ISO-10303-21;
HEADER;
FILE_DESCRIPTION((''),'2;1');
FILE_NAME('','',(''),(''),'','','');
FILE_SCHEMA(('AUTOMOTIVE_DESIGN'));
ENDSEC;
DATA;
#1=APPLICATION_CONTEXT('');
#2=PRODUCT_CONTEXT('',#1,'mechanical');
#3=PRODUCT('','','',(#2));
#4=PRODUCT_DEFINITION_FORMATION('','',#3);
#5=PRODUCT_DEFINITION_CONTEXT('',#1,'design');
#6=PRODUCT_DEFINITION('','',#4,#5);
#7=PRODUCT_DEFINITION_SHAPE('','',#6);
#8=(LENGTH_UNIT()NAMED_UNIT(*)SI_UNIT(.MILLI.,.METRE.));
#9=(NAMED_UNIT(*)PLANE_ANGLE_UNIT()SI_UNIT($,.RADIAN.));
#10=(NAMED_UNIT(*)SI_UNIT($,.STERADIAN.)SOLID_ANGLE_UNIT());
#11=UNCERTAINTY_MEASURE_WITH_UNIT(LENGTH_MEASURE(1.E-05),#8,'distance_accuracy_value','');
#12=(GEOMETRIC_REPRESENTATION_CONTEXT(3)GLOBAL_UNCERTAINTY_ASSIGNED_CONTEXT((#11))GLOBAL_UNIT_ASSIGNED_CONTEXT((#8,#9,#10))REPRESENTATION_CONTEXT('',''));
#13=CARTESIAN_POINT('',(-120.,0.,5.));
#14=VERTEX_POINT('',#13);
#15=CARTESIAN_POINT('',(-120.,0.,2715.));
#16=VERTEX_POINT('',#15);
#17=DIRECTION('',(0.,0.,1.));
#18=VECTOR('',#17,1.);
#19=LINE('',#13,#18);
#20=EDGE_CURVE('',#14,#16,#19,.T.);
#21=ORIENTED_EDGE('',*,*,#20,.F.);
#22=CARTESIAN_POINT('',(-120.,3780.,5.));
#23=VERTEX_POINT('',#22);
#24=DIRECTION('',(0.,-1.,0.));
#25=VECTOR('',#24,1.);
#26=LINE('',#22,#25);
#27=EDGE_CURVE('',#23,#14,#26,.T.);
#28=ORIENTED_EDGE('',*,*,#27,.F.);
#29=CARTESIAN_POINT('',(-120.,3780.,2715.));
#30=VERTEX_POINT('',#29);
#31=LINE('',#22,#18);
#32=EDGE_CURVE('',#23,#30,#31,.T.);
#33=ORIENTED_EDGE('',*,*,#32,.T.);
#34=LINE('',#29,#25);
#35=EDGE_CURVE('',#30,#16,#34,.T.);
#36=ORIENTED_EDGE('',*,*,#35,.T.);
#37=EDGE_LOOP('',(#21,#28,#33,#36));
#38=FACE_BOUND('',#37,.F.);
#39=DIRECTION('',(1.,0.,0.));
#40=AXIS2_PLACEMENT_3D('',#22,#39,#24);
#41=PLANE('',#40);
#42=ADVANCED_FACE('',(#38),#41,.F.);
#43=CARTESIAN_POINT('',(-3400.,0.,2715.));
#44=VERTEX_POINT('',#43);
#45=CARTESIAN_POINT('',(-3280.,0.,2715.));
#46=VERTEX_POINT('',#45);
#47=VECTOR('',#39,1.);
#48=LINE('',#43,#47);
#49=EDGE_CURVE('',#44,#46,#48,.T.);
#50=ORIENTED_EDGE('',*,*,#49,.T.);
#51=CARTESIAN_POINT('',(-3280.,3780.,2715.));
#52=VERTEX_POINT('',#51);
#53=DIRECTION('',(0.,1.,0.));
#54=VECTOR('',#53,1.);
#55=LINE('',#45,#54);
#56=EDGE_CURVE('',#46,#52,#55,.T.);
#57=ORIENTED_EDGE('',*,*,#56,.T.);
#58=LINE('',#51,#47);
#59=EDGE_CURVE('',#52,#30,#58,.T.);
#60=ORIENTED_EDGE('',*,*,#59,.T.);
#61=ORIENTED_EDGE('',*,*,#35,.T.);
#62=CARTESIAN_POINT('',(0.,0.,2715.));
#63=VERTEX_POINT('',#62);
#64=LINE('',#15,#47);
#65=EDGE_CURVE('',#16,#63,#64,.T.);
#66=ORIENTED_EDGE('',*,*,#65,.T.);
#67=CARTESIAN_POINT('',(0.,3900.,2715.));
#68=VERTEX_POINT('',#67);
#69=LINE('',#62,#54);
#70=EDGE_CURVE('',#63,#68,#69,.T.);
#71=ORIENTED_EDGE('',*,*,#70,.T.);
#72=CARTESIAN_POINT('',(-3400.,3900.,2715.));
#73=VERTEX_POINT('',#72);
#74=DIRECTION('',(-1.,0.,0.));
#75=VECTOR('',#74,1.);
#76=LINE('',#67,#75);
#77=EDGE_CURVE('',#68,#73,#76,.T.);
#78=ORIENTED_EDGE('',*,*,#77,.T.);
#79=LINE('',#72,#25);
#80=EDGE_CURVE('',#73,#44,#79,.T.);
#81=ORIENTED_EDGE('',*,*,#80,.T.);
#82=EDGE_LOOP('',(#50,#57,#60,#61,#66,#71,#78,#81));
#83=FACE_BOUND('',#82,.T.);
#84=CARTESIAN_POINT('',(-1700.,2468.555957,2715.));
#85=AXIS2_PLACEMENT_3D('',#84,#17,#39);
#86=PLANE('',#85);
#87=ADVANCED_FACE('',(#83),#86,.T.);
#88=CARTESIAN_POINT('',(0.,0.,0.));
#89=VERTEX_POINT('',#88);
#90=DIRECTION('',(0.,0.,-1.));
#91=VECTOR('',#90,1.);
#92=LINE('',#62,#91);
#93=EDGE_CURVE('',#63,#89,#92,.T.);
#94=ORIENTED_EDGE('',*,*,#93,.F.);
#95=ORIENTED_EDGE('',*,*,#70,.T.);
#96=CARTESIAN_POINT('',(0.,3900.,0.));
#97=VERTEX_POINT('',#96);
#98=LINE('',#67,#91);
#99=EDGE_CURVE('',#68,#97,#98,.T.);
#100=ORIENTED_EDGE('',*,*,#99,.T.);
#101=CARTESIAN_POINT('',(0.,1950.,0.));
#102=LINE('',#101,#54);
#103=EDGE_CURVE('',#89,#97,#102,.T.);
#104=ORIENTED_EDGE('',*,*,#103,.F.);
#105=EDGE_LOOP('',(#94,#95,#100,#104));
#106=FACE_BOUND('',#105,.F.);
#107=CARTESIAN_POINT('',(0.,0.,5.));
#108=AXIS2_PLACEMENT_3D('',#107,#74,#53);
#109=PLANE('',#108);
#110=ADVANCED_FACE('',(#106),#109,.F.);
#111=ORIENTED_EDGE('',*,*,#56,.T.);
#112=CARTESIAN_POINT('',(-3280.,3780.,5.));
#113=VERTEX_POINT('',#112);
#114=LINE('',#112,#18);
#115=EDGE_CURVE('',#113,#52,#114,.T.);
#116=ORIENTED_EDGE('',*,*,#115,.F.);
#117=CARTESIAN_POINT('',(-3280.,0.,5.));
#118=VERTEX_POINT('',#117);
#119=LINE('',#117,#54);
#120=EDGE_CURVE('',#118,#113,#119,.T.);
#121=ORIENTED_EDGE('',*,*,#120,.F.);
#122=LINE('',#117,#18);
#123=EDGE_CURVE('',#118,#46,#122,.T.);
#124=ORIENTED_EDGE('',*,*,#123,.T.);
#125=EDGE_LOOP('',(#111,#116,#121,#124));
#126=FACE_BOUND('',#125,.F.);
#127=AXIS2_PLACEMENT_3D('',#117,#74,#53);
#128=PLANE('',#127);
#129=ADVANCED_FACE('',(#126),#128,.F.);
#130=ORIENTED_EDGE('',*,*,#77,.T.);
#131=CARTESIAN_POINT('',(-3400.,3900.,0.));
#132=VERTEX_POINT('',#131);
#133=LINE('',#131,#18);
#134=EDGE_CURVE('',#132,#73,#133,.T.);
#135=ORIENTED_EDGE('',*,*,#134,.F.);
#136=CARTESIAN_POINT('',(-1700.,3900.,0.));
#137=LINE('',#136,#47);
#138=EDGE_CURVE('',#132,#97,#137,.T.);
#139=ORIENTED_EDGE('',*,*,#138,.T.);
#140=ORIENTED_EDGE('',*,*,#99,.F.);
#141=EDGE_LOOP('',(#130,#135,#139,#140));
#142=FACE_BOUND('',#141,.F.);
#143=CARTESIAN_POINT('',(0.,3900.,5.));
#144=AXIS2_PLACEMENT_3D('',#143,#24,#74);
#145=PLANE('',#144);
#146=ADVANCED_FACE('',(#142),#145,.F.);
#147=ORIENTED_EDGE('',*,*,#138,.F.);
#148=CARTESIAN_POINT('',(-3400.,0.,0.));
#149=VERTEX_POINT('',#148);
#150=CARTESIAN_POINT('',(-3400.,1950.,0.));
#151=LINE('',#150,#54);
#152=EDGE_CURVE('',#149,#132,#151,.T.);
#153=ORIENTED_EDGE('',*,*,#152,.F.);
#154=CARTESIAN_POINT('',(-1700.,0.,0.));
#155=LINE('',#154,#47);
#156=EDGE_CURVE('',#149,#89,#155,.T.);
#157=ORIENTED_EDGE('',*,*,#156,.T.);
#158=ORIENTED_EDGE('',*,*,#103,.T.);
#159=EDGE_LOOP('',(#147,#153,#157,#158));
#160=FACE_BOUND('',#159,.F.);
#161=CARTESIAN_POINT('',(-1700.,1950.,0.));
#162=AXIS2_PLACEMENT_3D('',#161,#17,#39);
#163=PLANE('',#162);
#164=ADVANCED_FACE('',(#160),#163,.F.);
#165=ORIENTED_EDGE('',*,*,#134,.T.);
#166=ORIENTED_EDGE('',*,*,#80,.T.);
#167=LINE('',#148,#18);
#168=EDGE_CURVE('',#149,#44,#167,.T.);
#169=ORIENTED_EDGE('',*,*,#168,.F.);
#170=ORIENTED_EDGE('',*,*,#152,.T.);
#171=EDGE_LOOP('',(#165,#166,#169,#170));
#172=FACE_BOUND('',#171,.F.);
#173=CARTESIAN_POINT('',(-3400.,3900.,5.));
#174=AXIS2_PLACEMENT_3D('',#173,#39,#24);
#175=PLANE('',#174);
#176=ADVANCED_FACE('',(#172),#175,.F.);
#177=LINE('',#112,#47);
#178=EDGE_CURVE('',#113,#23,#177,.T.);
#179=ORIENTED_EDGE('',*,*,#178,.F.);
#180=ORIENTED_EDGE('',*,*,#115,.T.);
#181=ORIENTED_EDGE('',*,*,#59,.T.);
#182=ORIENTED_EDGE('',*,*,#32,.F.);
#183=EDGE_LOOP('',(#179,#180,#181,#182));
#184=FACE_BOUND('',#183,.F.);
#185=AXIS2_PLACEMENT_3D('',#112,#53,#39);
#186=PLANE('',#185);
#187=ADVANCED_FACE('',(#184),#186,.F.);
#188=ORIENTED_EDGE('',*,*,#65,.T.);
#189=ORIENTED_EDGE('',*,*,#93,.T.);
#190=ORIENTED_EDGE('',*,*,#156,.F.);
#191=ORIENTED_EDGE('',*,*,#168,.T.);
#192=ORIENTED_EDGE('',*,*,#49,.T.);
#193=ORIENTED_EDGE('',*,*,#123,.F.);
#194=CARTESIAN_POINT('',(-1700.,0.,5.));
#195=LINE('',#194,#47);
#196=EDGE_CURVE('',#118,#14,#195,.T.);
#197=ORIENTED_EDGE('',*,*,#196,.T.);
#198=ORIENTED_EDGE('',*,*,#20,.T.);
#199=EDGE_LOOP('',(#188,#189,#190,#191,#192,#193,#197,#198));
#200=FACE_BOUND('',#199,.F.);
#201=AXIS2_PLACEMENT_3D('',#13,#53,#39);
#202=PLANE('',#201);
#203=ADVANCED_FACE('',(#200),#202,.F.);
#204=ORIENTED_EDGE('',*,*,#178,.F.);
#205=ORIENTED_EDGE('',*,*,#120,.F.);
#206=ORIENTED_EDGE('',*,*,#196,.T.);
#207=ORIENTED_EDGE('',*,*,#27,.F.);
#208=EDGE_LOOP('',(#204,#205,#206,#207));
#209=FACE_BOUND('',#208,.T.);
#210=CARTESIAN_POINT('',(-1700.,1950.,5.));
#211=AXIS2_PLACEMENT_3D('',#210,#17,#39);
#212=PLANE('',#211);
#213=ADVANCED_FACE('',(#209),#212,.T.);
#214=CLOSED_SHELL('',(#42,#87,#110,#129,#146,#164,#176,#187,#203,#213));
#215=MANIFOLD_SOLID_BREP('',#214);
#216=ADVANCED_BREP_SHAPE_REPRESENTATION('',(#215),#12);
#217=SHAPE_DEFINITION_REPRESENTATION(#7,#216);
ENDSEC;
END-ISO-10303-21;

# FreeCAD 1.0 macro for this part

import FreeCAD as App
import Part
import Sketcher

V = App.Vector
Q = App.Units.Quantity


def add_polygon(sketch, points):
    """Adds a closed chain of lines whose ends are joined by coincident constraints."""
    first, n = sketch.GeometryCount, len(points)
    for a, b in zip(points, points[1:] + points[:1]):
        sketch.addGeometry(Part.LineSegment(App.Vector(*a, 0), App.Vector(*b, 0)), False)
    for i in range(n):
        sketch.addConstraint(Sketcher.Constraint("Coincident", first + i, 2, first + (i + 1) % n, 1))

doc = App.newDocument("Part")
body = doc.addObject("PartDesign::Body", "Body")

sketch1 = body.newObject("Sketcher::SketchObject", "Sketch")
sketch1.AttachmentSupport = (doc.getObject("XY_Plane"), [""])
sketch1.MapMode = "FlatFace"
add_polygon(sketch1, [(-3400, 3900), (-3400, 0), (0, 0), (0, 3900)])
sketch1.addConstraint([
    Sketcher.Constraint("Vertical", 0),
    Sketcher.Constraint("Horizontal", 1),
    Sketcher.Constraint("Vertical", 2),
    Sketcher.Constraint("Horizontal", 3),
    Sketcher.Constraint("Coincident", 1, 2, -1, 1),
    Sketcher.Constraint("DistanceX", 1, 1, 1, 2, Q("3400 mm")),
    Sketcher.Constraint("DistanceY", 0, 2, 0, 1, Q("3900 mm")),
])
pad1 = body.newObject("PartDesign::Pad", "Pad")
pad1.Profile = sketch1
pad1.Length = 5

sketch2 = body.newObject("Sketcher::SketchObject", "Sketch001")
sketch2.AttachmentSupport = (doc.getObject("XY_Plane"), [""])
sketch2.MapMode = "FlatFace"
sketch2.AttachmentOffset = App.Placement(V(0, 0, 5), App.Rotation())
add_polygon(sketch2, [(0, 3900), (-3400, 3900), (-3400, 0), (-3280, 0), (-3280, 3780), (-120, 3780), (-120, 0), (0, 0)])
sketch2.addConstraint([
    Sketcher.Constraint("Horizontal", 0),
    Sketcher.Constraint("Vertical", 1),
    Sketcher.Constraint("Horizontal", 2),
    Sketcher.Constraint("Vertical", 3),
    Sketcher.Constraint("Horizontal", 4),
    Sketcher.Constraint("Vertical", 5),
    Sketcher.Constraint("Horizontal", 6),
    Sketcher.Constraint("Vertical", 7),
    Sketcher.Constraint("Coincident", 6, 2, -1, 1),
    Sketcher.Constraint("PointOnObject", 1, 2, -1),
    Sketcher.Constraint("Equal", 2, 6),
    Sketcher.Constraint("DistanceX", 0, 2, 0, 1, Q("3400 mm")),
    Sketcher.Constraint("DistanceX", 2, 1, 2, 2, Q("120 mm")),
    Sketcher.Constraint("DistanceY", 1, 2, 1, 1, Q("3900 mm")),
    Sketcher.Constraint("DistanceY", 3, 1, 3, 2, Q("3780 mm")),
])
pad2 = body.newObject("PartDesign::Pad", "Pad001")
pad2.Profile = sketch2
pad2.Length = 2710

doc.recompute()
